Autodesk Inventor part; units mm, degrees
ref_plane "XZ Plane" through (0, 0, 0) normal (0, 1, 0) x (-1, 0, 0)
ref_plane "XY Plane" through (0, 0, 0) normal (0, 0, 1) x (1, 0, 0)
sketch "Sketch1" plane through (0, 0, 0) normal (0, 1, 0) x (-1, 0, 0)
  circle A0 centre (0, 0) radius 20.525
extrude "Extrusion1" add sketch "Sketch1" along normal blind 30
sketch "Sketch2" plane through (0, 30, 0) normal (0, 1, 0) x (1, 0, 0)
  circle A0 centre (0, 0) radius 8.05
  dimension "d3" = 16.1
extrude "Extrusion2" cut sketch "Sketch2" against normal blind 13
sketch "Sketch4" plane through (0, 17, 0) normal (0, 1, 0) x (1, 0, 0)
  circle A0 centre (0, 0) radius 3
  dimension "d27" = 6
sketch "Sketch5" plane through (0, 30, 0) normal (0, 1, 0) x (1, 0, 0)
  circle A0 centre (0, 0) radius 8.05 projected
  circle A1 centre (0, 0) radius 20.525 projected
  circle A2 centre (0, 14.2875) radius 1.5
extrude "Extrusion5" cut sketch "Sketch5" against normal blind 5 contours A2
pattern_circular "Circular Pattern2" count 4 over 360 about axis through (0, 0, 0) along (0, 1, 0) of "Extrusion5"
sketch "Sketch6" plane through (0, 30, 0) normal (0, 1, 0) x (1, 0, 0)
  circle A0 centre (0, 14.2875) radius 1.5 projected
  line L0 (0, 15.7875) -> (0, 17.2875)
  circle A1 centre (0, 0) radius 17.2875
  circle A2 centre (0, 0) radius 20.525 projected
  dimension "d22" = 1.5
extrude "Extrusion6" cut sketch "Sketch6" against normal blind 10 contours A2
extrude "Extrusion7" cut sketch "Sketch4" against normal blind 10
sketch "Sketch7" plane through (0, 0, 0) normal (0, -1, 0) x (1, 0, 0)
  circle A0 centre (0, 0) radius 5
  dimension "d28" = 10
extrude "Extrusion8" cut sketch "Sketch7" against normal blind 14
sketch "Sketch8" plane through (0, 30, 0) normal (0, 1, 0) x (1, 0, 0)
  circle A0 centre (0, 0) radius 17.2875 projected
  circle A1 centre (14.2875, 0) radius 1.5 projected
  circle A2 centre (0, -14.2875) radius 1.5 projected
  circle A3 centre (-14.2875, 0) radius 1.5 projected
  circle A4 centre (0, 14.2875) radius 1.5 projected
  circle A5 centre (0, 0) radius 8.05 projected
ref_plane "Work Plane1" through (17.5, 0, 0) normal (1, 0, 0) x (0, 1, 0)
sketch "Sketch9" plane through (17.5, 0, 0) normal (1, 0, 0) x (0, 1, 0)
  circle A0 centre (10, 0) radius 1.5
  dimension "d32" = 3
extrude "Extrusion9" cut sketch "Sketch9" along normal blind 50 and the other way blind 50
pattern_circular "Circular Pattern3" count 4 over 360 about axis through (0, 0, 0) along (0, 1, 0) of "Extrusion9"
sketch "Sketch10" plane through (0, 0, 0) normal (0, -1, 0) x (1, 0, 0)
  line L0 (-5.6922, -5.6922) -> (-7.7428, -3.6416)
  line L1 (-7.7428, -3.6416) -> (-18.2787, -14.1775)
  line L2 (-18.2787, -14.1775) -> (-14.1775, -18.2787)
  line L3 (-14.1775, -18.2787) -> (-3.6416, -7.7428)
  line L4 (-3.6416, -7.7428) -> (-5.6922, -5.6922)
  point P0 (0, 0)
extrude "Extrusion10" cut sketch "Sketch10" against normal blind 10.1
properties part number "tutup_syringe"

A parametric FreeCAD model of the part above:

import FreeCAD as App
import Part
import Sketcher

V = App.Vector
Q = App.Units.Quantity


def add_polygon(sketch, points):
    """Adds a closed chain of lines whose ends are joined by coincident constraints."""
    first, n = sketch.GeometryCount, len(points)
    for a, b in zip(points, points[1:] + points[:1]):
        sketch.addGeometry(Part.LineSegment(App.Vector(*a, 0), App.Vector(*b, 0)), False)
    for i in range(n):
        sketch.addConstraint(Sketcher.Constraint("Coincident", first + i, 2, first + (i + 1) % n, 1))

doc = App.newDocument("Part")
body = doc.addObject("PartDesign::Body", "Body")

sketch1 = doc.addObject("Sketcher::SketchObject", "Sketch")
body.addObject(sketch1)
sketch1.AttachmentSupport = (doc.XZ_Plane, [""])
sketch1.MapMode = "FlatFace"
sketch1.addGeometry(Part.Circle(V(0, 0, 0), V(0, 0, 1), 21), False)
sketch1.addConstraint([
    Sketcher.Constraint("Coincident", 0, 3, -1, 1),
    Sketcher.Constraint("Diameter", 0, Q("41.05 mm")),
])
pad1 = doc.addObject("PartDesign::Pad", "Pad")
body.addObject(pad1)
pad1.Profile = sketch1
pad1.Length = 30
pad1.Reversed = True

sketch2 = doc.addObject("Sketcher::SketchObject", "Sketch001")
body.addObject(sketch2)
sketch2.AttachmentSupport = (doc.XZ_Plane, [""])
sketch2.MapMode = "FlatFace"
sketch2.AttachmentOffset = App.Placement(V(0, 0, -30), App.Rotation())
sketch2.addGeometry(Part.Circle(V(0, 0, 0), V(0, 0, 1), 8), False)
sketch2.addConstraint([
    Sketcher.Constraint("Coincident", 0, 3, -1, 1),
    Sketcher.Constraint("Diameter", 0, Q("16.1 mm")),
])
pocket1 = doc.addObject("PartDesign::Pocket", "Pocket")
body.addObject(pocket1)
pocket1.Profile = sketch2
pocket1.Length = 13
pocket1.Reversed = True

sketch3 = doc.addObject("Sketcher::SketchObject", "Sketch002")
body.addObject(sketch3)
sketch3.AttachmentSupport = (doc.XZ_Plane, [""])
sketch3.MapMode = "FlatFace"
sketch3.AttachmentOffset = App.Placement(V(0, 0, -30), App.Rotation())
sketch3.addGeometry(Part.Circle(V(0, -14.3, 0), V(0, 0, 1), 1.5), False)
sketch3.addConstraint([
    Sketcher.Constraint("PointOnObject", 0, 3, -2),
    Sketcher.Constraint("Diameter", 0, Q("3 mm")),
    Sketcher.Constraint("DistanceY", 0, 3, -1, 1, Q("14.2875 mm")),
])
pocket2 = doc.addObject("PartDesign::Pocket", "Pocket001")
body.addObject(pocket2)
pocket2.Profile = sketch3
pocket2.Length = 5
pocket2.Reversed = True
doc.recompute()

polarpattern = doc.addObject("PartDesign::PolarPattern", "PolarPattern")
body.addObject(polarpattern)
polarpattern.Originals = [pocket2]
polarpattern.Axis = (doc.Y_Axis, [""])
polarpattern.Angle = 360
polarpattern.Occurrences = 4
body.Tip = polarpattern

sketch4 = doc.addObject("Sketcher::SketchObject", "Sketch003")
body.addObject(sketch4)
sketch4.AttachmentSupport = (doc.XZ_Plane, [""])
sketch4.MapMode = "FlatFace"
sketch4.AttachmentOffset = App.Placement(V(0, 0, -30), App.Rotation())
sketch4.addGeometry([
    Part.Circle(V(0, 0, 0), V(0, 0, 1), 21),
    Part.Circle(V(0, 0, 0), V(0, 0, 1), 17),
], False)
sketch4.addConstraint([
    Sketcher.Constraint("Coincident", 0, 3, -1, 1),
    Sketcher.Constraint("Coincident", 1, 3, -1, 1),
    Sketcher.Constraint("Diameter", 0, Q("41.05 mm")),
    Sketcher.Constraint("Diameter", 1, Q("34.575 mm")),
])
pocket3 = doc.addObject("PartDesign::Pocket", "Pocket002")
body.addObject(pocket3)
pocket3.Profile = sketch4
pocket3.Length = 10
pocket3.Reversed = True

sketch5 = doc.addObject("Sketcher::SketchObject", "Sketch004")
body.addObject(sketch5)
sketch5.AttachmentSupport = (doc.XZ_Plane, [""])
sketch5.MapMode = "FlatFace"
sketch5.AttachmentOffset = App.Placement(V(0, 0, -17), App.Rotation())
sketch5.addGeometry(Part.Circle(V(0, 0, 0), V(0, 0, 1), 3), False)
sketch5.addConstraint([
    Sketcher.Constraint("Coincident", 0, 3, -1, 1),
    Sketcher.Constraint("Diameter", 0, Q("6 mm")),
])
pocket4 = doc.addObject("PartDesign::Pocket", "Pocket003")
body.addObject(pocket4)
pocket4.Profile = sketch5
pocket4.Length = 10
pocket4.Reversed = True

sketch6 = doc.addObject("Sketcher::SketchObject", "Sketch005")
body.addObject(sketch6)
sketch6.AttachmentSupport = (doc.XZ_Plane, [""])
sketch6.MapMode = "FlatFace"
sketch6.addGeometry(Part.Circle(V(0, 0, 0), V(0, 0, 1), 5), False)
sketch6.addConstraint([
    Sketcher.Constraint("Coincident", 0, 3, -1, 1),
    Sketcher.Constraint("Diameter", 0, Q("10 mm")),
])
pocket5 = doc.addObject("PartDesign::Pocket", "Pocket004")
body.addObject(pocket5)
pocket5.Profile = sketch6
pocket5.Length = 14

sketch7 = doc.addObject("Sketcher::SketchObject", "Sketch006")
body.addObject(sketch7)
sketch7.AttachmentSupport = (doc.YZ_Plane, [""])
sketch7.MapMode = "FlatFace"
sketch7.AttachmentOffset = App.Placement(V(0, 0, 17.5), App.Rotation())
sketch7.addGeometry(Part.Circle(V(10, 0, 0), V(0, 0, 1), 1.5), False)
sketch7.addConstraint([
    Sketcher.Constraint("PointOnObject", 0, 3, -1),
    Sketcher.Constraint("Diameter", 0, Q("3 mm")),
    Sketcher.Constraint("DistanceX", -1, 1, 0, 3, Q("10 mm")),
])
pocket6 = doc.addObject("PartDesign::Pocket", "Pocket005")
body.addObject(pocket6)
pocket6.Profile = sketch7
pocket6.Type = "ThroughAll"
pocket6.Midplane = True
doc.recompute()

polarpattern2 = doc.addObject("PartDesign::PolarPattern", "PolarPattern001")
body.addObject(polarpattern2)
polarpattern2.Originals = [pocket6]
polarpattern2.Axis = (doc.Y_Axis, [""])
polarpattern2.Angle = 360
polarpattern2.Occurrences = 4
body.Tip = polarpattern2

sketch8 = doc.addObject("Sketcher::SketchObject", "Sketch007")
body.addObject(sketch8)
sketch8.AttachmentSupport = (doc.XZ_Plane, [""])
sketch8.MapMode = "FlatFace"
add_polygon(sketch8, [(-4, -8), (-8, -4), (-18, -14), (-14, -18)])
sketch8.addConstraint([
    Sketcher.Constraint("Perpendicular", 0, 1),
    Sketcher.Constraint("Perpendicular", 1, 2),
    Sketcher.Constraint("Perpendicular", 2, 3),
    Sketcher.Constraint("Angle", 0, Q("135 deg")),
    Sketcher.Constraint("Distance", 0, Q("5.8 mm")),
    Sketcher.Constraint("Distance", 1, Q("14.9 mm")),
    Sketcher.Constraint("DistanceX", 0, 2, -1, 1, Q("7.7428 mm")),
    Sketcher.Constraint("DistanceY", 0, 2, -1, 1, Q("3.6416 mm")),
])
pocket7 = doc.addObject("PartDesign::Pocket", "Pocket006")
body.addObject(pocket7)
pocket7.Profile = sketch8
pocket7.Length = 10.1

doc.recompute()
